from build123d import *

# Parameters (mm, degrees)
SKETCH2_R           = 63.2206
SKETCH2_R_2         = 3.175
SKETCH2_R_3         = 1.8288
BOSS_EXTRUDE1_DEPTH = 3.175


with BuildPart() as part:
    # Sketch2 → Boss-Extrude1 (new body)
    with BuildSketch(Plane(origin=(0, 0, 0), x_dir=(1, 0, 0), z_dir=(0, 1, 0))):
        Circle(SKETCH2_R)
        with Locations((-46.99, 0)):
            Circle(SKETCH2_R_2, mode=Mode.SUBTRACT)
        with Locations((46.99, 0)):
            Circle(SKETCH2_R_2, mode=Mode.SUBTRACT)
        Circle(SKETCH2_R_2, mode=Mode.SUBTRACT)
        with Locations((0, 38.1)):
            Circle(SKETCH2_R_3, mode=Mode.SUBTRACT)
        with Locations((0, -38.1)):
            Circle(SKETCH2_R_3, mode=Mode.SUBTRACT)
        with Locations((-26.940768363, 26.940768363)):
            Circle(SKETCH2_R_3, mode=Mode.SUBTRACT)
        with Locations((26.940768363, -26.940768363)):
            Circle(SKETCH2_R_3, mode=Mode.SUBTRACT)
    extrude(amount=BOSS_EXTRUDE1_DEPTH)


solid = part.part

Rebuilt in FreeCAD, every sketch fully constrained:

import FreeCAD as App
import Part
import Sketcher
from FreeCAD import Vector
Q = App.Units.Quantity

doc = App.newDocument("Part")
body = doc.addObject("PartDesign::Body", "Body")

sketch1 = body.newObject("Sketcher::SketchObject", "Sketch")
sketch1.AttachmentSupport = (doc.getObject("XZ_Plane"), [""])
sketch1.MapMode = "FlatFace"
sketch1.addGeometry(Part.Circle(Vector(0, 0, 0), Vector(0, 0, 1), 63.2), False)
sketch1.addGeometry(Part.Circle(Vector(0, 38.1, 0), Vector(0, 0, 1), 1.8), False)
sketch1.addGeometry(Part.Circle(Vector(26.9, 26.9, 0), Vector(0, 0, 1), 1.8), False)
sketch1.addGeometry(Part.Circle(Vector(-47, 0, 0), Vector(0, 0, 1), 3.2), False)
sketch1.addGeometry(Part.Circle(Vector(-26.9, -26.9, 0), Vector(0, 0, 1), 1.8), False)
sketch1.addGeometry(Part.Circle(Vector(0, 0, 0), Vector(0, 0, 1), 3.2), False)
sketch1.addGeometry(Part.Circle(Vector(47, 0, 0), Vector(0, 0, 1), 3.2), False)
sketch1.addGeometry(Part.Circle(Vector(0, -38.1, 0), Vector(0, 0, 1), 1.8), False)
sketch1.addConstraint(Sketcher.Constraint("Coincident", 0, 3, -1, 1))
sketch1.addConstraint(Sketcher.Constraint("Coincident", 5, 3, -1, 1))
sketch1.addConstraint(Sketcher.Constraint("Equal", 1, 2))
sketch1.addConstraint(Sketcher.Constraint("Equal", 2, 4))
sketch1.addConstraint(Sketcher.Constraint("Equal", 3, 5))
sketch1.addConstraint(Sketcher.Constraint("Equal", 5, 6))
sketch1.addConstraint(Sketcher.Constraint("Equal", 4, 7))
sketch1.addConstraint(Sketcher.Constraint("Symmetric", 2, 3, 4, 3, -1, 1))
sketch1.addConstraint(Sketcher.Constraint("Symmetric", 3, 3, 6, 3, -1, 1))
sketch1.addConstraint(Sketcher.Constraint("Symmetric", 1, 3, 7, 3, -1, 1))
sketch1.addConstraint(Sketcher.Constraint("PointOnObject", 1, 3, -2))
sketch1.addConstraint(Sketcher.Constraint("PointOnObject", 3, 3, -1))
sketch1.addConstraint(Sketcher.Constraint("Diameter", 3, Q("0.25 in")))
sketch1.addConstraint(Sketcher.Constraint("Diameter", 0, Q("4.978 in")))
sketch1.addConstraint(Sketcher.Constraint("Diameter", 1, Q("0.144 in")))
sketch1.addConstraint(Sketcher.Constraint("DistanceY", -1, 1, 1, 3, Q("1.5 in")))
sketch1.addConstraint(Sketcher.Constraint("DistanceX", 3, 3, -1, 1, Q("1.85 in")))
sketch1.addConstraint(Sketcher.Constraint("DistanceX", -1, 1, 2, 3, 26.940768))
sketch1.addConstraint(Sketcher.Constraint("DistanceY", -1, 1, 2, 3, 26.940768))
pad1 = body.newObject("PartDesign::Pad", "Pad")
pad1.Profile = sketch1
pad1.Length = Q("0.125 in")
pad1.Reversed = True

doc.recompute()
